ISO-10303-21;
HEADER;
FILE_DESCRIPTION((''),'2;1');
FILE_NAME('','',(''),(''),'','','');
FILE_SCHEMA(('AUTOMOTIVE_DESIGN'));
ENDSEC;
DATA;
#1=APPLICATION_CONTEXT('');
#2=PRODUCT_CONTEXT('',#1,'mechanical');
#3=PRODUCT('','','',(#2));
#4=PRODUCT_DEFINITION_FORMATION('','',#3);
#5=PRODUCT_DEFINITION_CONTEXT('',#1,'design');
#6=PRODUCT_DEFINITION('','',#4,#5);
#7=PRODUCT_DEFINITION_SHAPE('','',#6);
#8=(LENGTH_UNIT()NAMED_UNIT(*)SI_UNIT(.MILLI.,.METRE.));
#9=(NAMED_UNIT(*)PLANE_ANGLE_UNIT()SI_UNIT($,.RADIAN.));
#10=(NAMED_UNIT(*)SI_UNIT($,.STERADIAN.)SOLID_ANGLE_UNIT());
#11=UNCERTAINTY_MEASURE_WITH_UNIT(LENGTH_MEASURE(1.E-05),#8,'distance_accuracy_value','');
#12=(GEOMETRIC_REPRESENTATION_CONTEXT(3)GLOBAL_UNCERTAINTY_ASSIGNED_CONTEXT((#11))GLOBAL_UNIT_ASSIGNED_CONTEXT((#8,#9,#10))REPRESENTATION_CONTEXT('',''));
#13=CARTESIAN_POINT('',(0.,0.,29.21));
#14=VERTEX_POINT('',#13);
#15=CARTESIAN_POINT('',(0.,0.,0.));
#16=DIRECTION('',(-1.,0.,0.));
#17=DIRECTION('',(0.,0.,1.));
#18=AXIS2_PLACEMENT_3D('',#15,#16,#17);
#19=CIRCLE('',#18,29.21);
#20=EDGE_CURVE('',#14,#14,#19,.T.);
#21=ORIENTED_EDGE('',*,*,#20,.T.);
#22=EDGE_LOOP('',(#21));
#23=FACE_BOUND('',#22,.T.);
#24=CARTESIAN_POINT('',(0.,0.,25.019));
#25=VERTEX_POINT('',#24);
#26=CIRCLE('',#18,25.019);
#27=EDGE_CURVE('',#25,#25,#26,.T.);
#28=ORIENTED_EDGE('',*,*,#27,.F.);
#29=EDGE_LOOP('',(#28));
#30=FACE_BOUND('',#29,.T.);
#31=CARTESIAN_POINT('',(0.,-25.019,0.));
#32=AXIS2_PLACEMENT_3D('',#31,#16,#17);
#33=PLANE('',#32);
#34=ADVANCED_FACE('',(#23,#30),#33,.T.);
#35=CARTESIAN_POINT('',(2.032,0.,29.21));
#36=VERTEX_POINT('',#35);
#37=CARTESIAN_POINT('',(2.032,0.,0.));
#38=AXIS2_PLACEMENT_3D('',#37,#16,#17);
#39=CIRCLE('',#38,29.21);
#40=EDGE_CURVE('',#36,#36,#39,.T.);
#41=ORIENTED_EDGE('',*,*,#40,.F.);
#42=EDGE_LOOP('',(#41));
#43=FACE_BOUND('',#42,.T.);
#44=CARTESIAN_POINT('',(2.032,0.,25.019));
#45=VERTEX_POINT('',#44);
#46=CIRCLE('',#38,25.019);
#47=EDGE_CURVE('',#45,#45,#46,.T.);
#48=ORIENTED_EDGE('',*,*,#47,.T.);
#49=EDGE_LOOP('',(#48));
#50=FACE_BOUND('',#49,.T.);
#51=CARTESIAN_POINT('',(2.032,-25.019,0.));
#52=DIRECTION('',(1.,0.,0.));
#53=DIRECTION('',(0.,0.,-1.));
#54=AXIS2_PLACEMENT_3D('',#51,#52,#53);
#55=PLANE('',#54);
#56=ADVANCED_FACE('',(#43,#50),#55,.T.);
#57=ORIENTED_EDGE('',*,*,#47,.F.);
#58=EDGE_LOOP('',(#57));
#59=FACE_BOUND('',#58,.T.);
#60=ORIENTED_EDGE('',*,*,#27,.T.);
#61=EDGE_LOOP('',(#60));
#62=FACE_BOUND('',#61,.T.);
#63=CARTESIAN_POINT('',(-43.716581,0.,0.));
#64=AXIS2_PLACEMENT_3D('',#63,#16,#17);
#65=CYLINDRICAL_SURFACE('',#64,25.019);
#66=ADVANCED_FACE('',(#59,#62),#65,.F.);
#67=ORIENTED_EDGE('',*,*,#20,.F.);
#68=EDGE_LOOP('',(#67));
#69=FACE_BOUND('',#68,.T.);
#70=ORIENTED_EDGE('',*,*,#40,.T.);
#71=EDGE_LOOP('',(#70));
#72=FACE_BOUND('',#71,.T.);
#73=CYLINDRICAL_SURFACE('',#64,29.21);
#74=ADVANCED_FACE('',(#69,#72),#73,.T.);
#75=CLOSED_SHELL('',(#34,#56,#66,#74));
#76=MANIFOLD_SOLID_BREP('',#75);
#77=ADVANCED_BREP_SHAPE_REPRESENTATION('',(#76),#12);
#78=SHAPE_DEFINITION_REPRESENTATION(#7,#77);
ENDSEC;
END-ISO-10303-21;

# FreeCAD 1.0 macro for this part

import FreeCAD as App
import Part
import Sketcher

V = App.Vector
Q = App.Units.Quantity


def add_polygon(sketch, points):
    """Adds a closed chain of lines whose ends are joined by coincident constraints."""
    first, n = sketch.GeometryCount, len(points)
    for a, b in zip(points, points[1:] + points[:1]):
        sketch.addGeometry(Part.LineSegment(App.Vector(*a, 0), App.Vector(*b, 0)), False)
    for i in range(n):
        sketch.addConstraint(Sketcher.Constraint("Coincident", first + i, 2, first + (i + 1) % n, 1))

doc = App.newDocument("Part")
body = doc.addObject("PartDesign::Body", "Body")

sketch1 = body.newObject("Sketcher::SketchObject", "Sketch")
sketch1.AttachmentSupport = (doc.getObject("XY_Plane"), [""])
sketch1.MapMode = "FlatFace"
add_polygon(sketch1, [(0, -25.019), (0, -29.21), (2.032, -29.21), (2.032, -25.019)])
sketch1.addConstraint([
    Sketcher.Constraint("Vertical", 0),
    Sketcher.Constraint("Horizontal", 1),
    Sketcher.Constraint("Vertical", 2),
    Sketcher.Constraint("Horizontal", 3),
    Sketcher.Constraint("PointOnObject", 0, 2, -2),
    Sketcher.Constraint("DistanceX", 1, 1, 1, 2, Q("0.08 in")),
    Sketcher.Constraint("DistanceY", 0, 2, 0, 1, Q("0.165 in")),
    Sketcher.Constraint("DistanceY", 0, 2, -1, 1, Q("1.15 in")),
])
revolution = body.newObject("PartDesign::Revolution", "Revolution")
revolution.Profile = sketch1
revolution.ReferenceAxis = (sketch1, ["H_Axis"])
revolution.Angle = 360

doc.recompute()
